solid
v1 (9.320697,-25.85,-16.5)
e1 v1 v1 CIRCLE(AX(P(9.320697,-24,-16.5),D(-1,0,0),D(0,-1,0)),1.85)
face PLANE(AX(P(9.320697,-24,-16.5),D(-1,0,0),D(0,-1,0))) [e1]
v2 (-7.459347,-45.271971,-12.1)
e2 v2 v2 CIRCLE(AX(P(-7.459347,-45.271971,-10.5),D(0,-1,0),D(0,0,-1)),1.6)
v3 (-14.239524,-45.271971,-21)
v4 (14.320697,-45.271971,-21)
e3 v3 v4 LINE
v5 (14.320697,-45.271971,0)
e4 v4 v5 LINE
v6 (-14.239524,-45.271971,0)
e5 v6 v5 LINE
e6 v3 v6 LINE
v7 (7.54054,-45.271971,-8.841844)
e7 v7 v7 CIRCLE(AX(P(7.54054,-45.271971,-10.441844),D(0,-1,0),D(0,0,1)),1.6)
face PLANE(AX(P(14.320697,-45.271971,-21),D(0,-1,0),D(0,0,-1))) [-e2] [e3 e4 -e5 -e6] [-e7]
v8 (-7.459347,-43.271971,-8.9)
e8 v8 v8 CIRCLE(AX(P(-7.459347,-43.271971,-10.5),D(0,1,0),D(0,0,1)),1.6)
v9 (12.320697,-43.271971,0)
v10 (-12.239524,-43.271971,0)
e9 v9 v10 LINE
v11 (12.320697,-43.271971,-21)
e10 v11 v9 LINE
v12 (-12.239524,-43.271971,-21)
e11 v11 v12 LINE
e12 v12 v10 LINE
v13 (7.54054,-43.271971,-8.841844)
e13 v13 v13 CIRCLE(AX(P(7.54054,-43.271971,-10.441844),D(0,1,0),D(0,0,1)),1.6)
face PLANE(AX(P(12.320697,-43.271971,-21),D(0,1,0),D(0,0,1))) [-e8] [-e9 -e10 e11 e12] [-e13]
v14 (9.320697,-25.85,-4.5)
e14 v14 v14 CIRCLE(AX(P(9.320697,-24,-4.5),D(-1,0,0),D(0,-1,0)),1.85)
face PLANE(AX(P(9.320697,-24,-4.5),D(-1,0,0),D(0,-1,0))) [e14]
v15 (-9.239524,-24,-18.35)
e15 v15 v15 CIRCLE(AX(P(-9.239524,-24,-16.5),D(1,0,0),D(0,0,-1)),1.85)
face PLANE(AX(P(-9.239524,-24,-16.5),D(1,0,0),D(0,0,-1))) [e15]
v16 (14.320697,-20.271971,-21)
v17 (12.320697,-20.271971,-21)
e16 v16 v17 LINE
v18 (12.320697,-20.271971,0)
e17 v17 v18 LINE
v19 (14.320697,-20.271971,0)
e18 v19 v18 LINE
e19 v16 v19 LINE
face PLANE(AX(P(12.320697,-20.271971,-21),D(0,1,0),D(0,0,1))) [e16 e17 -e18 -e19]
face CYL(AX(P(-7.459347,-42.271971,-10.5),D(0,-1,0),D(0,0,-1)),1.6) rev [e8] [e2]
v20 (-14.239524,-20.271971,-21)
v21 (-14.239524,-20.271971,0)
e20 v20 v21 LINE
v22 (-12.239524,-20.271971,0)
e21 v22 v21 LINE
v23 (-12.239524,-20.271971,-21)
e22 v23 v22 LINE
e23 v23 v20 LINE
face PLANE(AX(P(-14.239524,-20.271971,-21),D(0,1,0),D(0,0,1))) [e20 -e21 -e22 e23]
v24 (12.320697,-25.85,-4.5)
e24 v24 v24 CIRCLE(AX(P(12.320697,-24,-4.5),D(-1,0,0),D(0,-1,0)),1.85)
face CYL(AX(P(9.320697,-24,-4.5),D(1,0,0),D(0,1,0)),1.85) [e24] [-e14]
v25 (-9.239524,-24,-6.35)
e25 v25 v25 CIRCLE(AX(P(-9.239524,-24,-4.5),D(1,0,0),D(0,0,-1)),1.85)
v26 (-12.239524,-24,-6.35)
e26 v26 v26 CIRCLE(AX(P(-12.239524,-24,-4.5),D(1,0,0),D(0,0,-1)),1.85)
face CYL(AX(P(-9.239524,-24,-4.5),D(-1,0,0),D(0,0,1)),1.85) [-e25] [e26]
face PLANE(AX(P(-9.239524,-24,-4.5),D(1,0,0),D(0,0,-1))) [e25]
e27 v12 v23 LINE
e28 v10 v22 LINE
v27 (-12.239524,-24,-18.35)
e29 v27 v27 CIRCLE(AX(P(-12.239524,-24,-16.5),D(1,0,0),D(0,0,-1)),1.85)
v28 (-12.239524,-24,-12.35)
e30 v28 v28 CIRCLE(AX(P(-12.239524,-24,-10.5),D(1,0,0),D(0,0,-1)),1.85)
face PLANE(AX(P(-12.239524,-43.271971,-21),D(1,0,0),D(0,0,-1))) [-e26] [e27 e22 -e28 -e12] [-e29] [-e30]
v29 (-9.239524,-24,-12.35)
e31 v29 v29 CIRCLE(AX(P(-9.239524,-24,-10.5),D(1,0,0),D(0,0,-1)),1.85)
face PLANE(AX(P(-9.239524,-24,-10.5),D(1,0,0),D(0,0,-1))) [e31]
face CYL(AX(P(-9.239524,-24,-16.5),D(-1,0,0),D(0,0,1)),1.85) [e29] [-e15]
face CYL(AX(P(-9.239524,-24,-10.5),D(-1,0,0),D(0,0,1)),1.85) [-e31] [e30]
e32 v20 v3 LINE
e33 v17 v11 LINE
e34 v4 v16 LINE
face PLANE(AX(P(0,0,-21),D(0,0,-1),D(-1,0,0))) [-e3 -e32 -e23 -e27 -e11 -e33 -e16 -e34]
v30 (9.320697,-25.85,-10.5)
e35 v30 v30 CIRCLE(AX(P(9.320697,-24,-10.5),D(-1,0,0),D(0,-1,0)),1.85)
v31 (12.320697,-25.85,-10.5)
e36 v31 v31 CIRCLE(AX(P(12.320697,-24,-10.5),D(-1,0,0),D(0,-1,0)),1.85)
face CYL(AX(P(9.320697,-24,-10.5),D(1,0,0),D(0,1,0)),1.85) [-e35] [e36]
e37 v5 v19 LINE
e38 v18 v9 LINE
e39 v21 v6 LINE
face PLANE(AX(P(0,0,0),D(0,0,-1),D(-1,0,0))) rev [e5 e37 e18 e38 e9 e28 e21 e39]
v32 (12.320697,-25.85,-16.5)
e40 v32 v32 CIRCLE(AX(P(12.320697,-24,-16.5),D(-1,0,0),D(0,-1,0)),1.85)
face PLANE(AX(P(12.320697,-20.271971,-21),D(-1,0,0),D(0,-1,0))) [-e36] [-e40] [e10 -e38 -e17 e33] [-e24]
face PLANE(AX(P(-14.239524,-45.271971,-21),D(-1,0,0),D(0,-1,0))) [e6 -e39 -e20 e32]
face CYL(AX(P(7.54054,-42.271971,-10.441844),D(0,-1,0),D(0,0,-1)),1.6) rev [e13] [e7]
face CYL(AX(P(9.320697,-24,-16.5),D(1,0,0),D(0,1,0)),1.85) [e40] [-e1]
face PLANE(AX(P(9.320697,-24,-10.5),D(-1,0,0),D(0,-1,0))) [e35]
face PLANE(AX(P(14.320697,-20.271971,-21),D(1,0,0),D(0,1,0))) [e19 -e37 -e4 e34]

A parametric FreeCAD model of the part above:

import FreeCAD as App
import Part
import Sketcher
from FreeCAD import Vector

doc = App.newDocument("Part")
body = doc.addObject("PartDesign::Body", "Body")

# Sketch on XY plane
sketch1 = doc.addObject("Sketcher::SketchObject", "Sketch")
body.addObject(sketch1)
sketch1.AttachmentSupport = (doc.XY_Plane, [""])
sketch1.MapMode = "FlatFace"
sketch1.addGeometry(Part.LineSegment(Vector(14.3, -20.3, 0), Vector(12.3, -20.3, 0)), False)
sketch1.addGeometry(Part.LineSegment(Vector(12.3, -20.3, 0), Vector(12.3, -43.3, 0)), False)
sketch1.addGeometry(Part.LineSegment(Vector(12.3, -43.3, 0), Vector(-12.2, -43.3, 0)), False)
sketch1.addGeometry(Part.LineSegment(Vector(-12.2, -43.3, 0), Vector(-12.2, -20.3, 0)), False)
sketch1.addGeometry(Part.LineSegment(Vector(-12.2, -20.3, 0), Vector(-14.2, -20.3, 0)), False)
sketch1.addGeometry(Part.LineSegment(Vector(-14.2, -20.3, 0), Vector(-14.2, -45.3, 0)), False)
sketch1.addGeometry(Part.LineSegment(Vector(-14.2, -45.3, 0), Vector(14.3, -45.3, 0)), False)
sketch1.addGeometry(Part.LineSegment(Vector(14.3, -45.3, 0), Vector(14.3, -20.3, 0)), False)
sketch1.addConstraint(Sketcher.Constraint("Coincident", 0, 2, 1, 1))
sketch1.addConstraint(Sketcher.Constraint("Coincident", 1, 2, 2, 1))
sketch1.addConstraint(Sketcher.Constraint("Coincident", 2, 2, 3, 1))
sketch1.addConstraint(Sketcher.Constraint("Coincident", 3, 2, 4, 1))
sketch1.addConstraint(Sketcher.Constraint("Coincident", 4, 2, 5, 1))
sketch1.addConstraint(Sketcher.Constraint("Coincident", 5, 2, 6, 1))
sketch1.addConstraint(Sketcher.Constraint("Coincident", 6, 2, 7, 1))
sketch1.addConstraint(Sketcher.Constraint("Coincident", 7, 2, 0, 1))
sketch1.addConstraint(Sketcher.Constraint("Horizontal", 0))
sketch1.addConstraint(Sketcher.Constraint("Vertical", 1))
sketch1.addConstraint(Sketcher.Constraint("Horizontal", 2))
sketch1.addConstraint(Sketcher.Constraint("Vertical", 3))
sketch1.addConstraint(Sketcher.Constraint("Horizontal", 4))
sketch1.addConstraint(Sketcher.Constraint("Vertical", 5))
sketch1.addConstraint(Sketcher.Constraint("Horizontal", 6))
sketch1.addConstraint(Sketcher.Constraint("Vertical", 7))
sketch1.addConstraint(Sketcher.Constraint("Horizontal", 0, 2, 3, 2))
sketch1.addConstraint(Sketcher.Constraint("Equal", 0, 4))
sketch1.addConstraint(Sketcher.Constraint("DistanceX", 0, 2, 0, 1, 2.0))
sketch1.addConstraint(Sketcher.Constraint("DistanceY", 1, 2, 1, 1, 23.0))
sketch1.addConstraint(Sketcher.Constraint("DistanceY", 5, 2, 5, 1, 25.0))
sketch1.addConstraint(Sketcher.Constraint("DistanceX", 2, 2, 2, 1, 24.560221))
sketch1.addConstraint(Sketcher.Constraint("DistanceY", 0, 2, -1, 1, 20.271971))
sketch1.addConstraint(Sketcher.Constraint("DistanceX", -1, 1, 0, 2, 12.320697))
pad1 = doc.addObject("PartDesign::Pad", "Pad")
body.addObject(pad1)
pad1.Profile = sketch1
pad1.Length = 21
pad1.Reversed = True

# Sketch on XZ plane
sketch2 = doc.addObject("Sketcher::SketchObject", "Sketch001")
body.addObject(sketch2)
sketch2.AttachmentSupport = (doc.XZ_Plane, [""])
sketch2.MapMode = "FlatFace"
sketch2.AttachmentOffset = App.Placement(Vector(0, 0, 45.271971), App.Rotation())
sketch2.addGeometry(Part.Circle(Vector(-7.5, -10.5, 0), Vector(0, 0, 1), 1.6), False)
sketch2.addGeometry(Part.Circle(Vector(7.5, -10.4, 0), Vector(0, 0, 1), 1.6), False)
sketch2.addConstraint(Sketcher.Constraint("Equal", 0, 1))
sketch2.addConstraint(Sketcher.Constraint("Diameter", 0, 3.2))
sketch2.addConstraint(Sketcher.Constraint("DistanceY", 0, 3, -1, 1, 10.5))
sketch2.addConstraint(Sketcher.Constraint("DistanceX", -1, 1, 1, 3, 7.54054))
sketch2.addConstraint(Sketcher.Constraint("DistanceX", 0, 3, -1, 1, 7.459347))
sketch2.addConstraint(Sketcher.Constraint("DistanceY", 1, 3, -1, 1, 10.441844))
pocket1 = doc.addObject("PartDesign::Pocket", "Pocket")
body.addObject(pocket1)
pocket1.Profile = sketch2
pocket1.Length = 3

# Sketch on YZ plane
sketch3 = doc.addObject("Sketcher::SketchObject", "Sketch002")
body.addObject(sketch3)
sketch3.AttachmentSupport = (doc.YZ_Plane, [""])
sketch3.MapMode = "FlatFace"
sketch3.AttachmentOffset = App.Placement(Vector(0, 0, -12.239524), App.Rotation())
sketch3.addGeometry(Part.Circle(Vector(-24, -16.5, 0), Vector(0, 0, 1), 1.9), False)
sketch3.addGeometry(Part.Circle(Vector(-24, -10.5, 0), Vector(0, 0, 1), 1.9), False)
sketch3.addGeometry(Part.Circle(Vector(-24, -4.5, 0), Vector(0, 0, 1), 1.9), False)
sketch3.addConstraint(Sketcher.Constraint("Equal", 0, 1))
sketch3.addConstraint(Sketcher.Constraint("Equal", 1, 2))
sketch3.addConstraint(Sketcher.Constraint("Vertical", 0, 3, 1, 3))
sketch3.addConstraint(Sketcher.Constraint("Vertical", 1, 3, 2, 3))
sketch3.addConstraint(Sketcher.Constraint("Diameter", 0, 3.7))
sketch3.addConstraint(Sketcher.Constraint("DistanceX", 0, 3, -1, 1, 24.0))
sketch3.addConstraint(Sketcher.Constraint("DistanceY", 0, 3, 1, 3, 6.0))
sketch3.addConstraint(Sketcher.Constraint("DistanceY", 1, 3, 2, 3, 6.0))
sketch3.addConstraint(Sketcher.Constraint("DistanceY", 0, 3, -1, 1, 16.5))
pad2 = doc.addObject("PartDesign::Pad", "Pad001")
body.addObject(pad2)
pad2.Profile = sketch3
pad2.Length = 3

# Sketch on YZ plane
sketch4 = doc.addObject("Sketcher::SketchObject", "Sketch003")
body.addObject(sketch4)
sketch4.AttachmentSupport = (doc.YZ_Plane, [""])
sketch4.MapMode = "FlatFace"
sketch4.AttachmentOffset = App.Placement(Vector(0, 0, 9.320697), App.Rotation())
sketch4.addGeometry(Part.Circle(Vector(-24, -16.5, 0), Vector(0, 0, 1), 1.9), False)
sketch4.addGeometry(Part.Circle(Vector(-24, -10.5, 0), Vector(0, 0, 1), 1.9), False)
sketch4.addGeometry(Part.Circle(Vector(-24, -4.5, 0), Vector(0, 0, 1), 1.9), False)
sketch4.addConstraint(Sketcher.Constraint("Equal", 0, 1))
sketch4.addConstraint(Sketcher.Constraint("Equal", 1, 2))
sketch4.addConstraint(Sketcher.Constraint("Vertical", 0, 3, 1, 3))
sketch4.addConstraint(Sketcher.Constraint("Vertical", 1, 3, 2, 3))
sketch4.addConstraint(Sketcher.Constraint("Diameter", 0, 3.7))
sketch4.addConstraint(Sketcher.Constraint("DistanceX", 0, 3, -1, 1, 24.0))
sketch4.addConstraint(Sketcher.Constraint("DistanceY", 0, 3, 1, 3, 6.0))
sketch4.addConstraint(Sketcher.Constraint("DistanceY", 1, 3, 2, 3, 6.0))
sketch4.addConstraint(Sketcher.Constraint("DistanceY", 0, 3, -1, 1, 16.5))
pad3 = doc.addObject("PartDesign::Pad", "Pad002")
body.addObject(pad3)
pad3.Profile = sketch4
pad3.Length = 3

doc.recompute()
